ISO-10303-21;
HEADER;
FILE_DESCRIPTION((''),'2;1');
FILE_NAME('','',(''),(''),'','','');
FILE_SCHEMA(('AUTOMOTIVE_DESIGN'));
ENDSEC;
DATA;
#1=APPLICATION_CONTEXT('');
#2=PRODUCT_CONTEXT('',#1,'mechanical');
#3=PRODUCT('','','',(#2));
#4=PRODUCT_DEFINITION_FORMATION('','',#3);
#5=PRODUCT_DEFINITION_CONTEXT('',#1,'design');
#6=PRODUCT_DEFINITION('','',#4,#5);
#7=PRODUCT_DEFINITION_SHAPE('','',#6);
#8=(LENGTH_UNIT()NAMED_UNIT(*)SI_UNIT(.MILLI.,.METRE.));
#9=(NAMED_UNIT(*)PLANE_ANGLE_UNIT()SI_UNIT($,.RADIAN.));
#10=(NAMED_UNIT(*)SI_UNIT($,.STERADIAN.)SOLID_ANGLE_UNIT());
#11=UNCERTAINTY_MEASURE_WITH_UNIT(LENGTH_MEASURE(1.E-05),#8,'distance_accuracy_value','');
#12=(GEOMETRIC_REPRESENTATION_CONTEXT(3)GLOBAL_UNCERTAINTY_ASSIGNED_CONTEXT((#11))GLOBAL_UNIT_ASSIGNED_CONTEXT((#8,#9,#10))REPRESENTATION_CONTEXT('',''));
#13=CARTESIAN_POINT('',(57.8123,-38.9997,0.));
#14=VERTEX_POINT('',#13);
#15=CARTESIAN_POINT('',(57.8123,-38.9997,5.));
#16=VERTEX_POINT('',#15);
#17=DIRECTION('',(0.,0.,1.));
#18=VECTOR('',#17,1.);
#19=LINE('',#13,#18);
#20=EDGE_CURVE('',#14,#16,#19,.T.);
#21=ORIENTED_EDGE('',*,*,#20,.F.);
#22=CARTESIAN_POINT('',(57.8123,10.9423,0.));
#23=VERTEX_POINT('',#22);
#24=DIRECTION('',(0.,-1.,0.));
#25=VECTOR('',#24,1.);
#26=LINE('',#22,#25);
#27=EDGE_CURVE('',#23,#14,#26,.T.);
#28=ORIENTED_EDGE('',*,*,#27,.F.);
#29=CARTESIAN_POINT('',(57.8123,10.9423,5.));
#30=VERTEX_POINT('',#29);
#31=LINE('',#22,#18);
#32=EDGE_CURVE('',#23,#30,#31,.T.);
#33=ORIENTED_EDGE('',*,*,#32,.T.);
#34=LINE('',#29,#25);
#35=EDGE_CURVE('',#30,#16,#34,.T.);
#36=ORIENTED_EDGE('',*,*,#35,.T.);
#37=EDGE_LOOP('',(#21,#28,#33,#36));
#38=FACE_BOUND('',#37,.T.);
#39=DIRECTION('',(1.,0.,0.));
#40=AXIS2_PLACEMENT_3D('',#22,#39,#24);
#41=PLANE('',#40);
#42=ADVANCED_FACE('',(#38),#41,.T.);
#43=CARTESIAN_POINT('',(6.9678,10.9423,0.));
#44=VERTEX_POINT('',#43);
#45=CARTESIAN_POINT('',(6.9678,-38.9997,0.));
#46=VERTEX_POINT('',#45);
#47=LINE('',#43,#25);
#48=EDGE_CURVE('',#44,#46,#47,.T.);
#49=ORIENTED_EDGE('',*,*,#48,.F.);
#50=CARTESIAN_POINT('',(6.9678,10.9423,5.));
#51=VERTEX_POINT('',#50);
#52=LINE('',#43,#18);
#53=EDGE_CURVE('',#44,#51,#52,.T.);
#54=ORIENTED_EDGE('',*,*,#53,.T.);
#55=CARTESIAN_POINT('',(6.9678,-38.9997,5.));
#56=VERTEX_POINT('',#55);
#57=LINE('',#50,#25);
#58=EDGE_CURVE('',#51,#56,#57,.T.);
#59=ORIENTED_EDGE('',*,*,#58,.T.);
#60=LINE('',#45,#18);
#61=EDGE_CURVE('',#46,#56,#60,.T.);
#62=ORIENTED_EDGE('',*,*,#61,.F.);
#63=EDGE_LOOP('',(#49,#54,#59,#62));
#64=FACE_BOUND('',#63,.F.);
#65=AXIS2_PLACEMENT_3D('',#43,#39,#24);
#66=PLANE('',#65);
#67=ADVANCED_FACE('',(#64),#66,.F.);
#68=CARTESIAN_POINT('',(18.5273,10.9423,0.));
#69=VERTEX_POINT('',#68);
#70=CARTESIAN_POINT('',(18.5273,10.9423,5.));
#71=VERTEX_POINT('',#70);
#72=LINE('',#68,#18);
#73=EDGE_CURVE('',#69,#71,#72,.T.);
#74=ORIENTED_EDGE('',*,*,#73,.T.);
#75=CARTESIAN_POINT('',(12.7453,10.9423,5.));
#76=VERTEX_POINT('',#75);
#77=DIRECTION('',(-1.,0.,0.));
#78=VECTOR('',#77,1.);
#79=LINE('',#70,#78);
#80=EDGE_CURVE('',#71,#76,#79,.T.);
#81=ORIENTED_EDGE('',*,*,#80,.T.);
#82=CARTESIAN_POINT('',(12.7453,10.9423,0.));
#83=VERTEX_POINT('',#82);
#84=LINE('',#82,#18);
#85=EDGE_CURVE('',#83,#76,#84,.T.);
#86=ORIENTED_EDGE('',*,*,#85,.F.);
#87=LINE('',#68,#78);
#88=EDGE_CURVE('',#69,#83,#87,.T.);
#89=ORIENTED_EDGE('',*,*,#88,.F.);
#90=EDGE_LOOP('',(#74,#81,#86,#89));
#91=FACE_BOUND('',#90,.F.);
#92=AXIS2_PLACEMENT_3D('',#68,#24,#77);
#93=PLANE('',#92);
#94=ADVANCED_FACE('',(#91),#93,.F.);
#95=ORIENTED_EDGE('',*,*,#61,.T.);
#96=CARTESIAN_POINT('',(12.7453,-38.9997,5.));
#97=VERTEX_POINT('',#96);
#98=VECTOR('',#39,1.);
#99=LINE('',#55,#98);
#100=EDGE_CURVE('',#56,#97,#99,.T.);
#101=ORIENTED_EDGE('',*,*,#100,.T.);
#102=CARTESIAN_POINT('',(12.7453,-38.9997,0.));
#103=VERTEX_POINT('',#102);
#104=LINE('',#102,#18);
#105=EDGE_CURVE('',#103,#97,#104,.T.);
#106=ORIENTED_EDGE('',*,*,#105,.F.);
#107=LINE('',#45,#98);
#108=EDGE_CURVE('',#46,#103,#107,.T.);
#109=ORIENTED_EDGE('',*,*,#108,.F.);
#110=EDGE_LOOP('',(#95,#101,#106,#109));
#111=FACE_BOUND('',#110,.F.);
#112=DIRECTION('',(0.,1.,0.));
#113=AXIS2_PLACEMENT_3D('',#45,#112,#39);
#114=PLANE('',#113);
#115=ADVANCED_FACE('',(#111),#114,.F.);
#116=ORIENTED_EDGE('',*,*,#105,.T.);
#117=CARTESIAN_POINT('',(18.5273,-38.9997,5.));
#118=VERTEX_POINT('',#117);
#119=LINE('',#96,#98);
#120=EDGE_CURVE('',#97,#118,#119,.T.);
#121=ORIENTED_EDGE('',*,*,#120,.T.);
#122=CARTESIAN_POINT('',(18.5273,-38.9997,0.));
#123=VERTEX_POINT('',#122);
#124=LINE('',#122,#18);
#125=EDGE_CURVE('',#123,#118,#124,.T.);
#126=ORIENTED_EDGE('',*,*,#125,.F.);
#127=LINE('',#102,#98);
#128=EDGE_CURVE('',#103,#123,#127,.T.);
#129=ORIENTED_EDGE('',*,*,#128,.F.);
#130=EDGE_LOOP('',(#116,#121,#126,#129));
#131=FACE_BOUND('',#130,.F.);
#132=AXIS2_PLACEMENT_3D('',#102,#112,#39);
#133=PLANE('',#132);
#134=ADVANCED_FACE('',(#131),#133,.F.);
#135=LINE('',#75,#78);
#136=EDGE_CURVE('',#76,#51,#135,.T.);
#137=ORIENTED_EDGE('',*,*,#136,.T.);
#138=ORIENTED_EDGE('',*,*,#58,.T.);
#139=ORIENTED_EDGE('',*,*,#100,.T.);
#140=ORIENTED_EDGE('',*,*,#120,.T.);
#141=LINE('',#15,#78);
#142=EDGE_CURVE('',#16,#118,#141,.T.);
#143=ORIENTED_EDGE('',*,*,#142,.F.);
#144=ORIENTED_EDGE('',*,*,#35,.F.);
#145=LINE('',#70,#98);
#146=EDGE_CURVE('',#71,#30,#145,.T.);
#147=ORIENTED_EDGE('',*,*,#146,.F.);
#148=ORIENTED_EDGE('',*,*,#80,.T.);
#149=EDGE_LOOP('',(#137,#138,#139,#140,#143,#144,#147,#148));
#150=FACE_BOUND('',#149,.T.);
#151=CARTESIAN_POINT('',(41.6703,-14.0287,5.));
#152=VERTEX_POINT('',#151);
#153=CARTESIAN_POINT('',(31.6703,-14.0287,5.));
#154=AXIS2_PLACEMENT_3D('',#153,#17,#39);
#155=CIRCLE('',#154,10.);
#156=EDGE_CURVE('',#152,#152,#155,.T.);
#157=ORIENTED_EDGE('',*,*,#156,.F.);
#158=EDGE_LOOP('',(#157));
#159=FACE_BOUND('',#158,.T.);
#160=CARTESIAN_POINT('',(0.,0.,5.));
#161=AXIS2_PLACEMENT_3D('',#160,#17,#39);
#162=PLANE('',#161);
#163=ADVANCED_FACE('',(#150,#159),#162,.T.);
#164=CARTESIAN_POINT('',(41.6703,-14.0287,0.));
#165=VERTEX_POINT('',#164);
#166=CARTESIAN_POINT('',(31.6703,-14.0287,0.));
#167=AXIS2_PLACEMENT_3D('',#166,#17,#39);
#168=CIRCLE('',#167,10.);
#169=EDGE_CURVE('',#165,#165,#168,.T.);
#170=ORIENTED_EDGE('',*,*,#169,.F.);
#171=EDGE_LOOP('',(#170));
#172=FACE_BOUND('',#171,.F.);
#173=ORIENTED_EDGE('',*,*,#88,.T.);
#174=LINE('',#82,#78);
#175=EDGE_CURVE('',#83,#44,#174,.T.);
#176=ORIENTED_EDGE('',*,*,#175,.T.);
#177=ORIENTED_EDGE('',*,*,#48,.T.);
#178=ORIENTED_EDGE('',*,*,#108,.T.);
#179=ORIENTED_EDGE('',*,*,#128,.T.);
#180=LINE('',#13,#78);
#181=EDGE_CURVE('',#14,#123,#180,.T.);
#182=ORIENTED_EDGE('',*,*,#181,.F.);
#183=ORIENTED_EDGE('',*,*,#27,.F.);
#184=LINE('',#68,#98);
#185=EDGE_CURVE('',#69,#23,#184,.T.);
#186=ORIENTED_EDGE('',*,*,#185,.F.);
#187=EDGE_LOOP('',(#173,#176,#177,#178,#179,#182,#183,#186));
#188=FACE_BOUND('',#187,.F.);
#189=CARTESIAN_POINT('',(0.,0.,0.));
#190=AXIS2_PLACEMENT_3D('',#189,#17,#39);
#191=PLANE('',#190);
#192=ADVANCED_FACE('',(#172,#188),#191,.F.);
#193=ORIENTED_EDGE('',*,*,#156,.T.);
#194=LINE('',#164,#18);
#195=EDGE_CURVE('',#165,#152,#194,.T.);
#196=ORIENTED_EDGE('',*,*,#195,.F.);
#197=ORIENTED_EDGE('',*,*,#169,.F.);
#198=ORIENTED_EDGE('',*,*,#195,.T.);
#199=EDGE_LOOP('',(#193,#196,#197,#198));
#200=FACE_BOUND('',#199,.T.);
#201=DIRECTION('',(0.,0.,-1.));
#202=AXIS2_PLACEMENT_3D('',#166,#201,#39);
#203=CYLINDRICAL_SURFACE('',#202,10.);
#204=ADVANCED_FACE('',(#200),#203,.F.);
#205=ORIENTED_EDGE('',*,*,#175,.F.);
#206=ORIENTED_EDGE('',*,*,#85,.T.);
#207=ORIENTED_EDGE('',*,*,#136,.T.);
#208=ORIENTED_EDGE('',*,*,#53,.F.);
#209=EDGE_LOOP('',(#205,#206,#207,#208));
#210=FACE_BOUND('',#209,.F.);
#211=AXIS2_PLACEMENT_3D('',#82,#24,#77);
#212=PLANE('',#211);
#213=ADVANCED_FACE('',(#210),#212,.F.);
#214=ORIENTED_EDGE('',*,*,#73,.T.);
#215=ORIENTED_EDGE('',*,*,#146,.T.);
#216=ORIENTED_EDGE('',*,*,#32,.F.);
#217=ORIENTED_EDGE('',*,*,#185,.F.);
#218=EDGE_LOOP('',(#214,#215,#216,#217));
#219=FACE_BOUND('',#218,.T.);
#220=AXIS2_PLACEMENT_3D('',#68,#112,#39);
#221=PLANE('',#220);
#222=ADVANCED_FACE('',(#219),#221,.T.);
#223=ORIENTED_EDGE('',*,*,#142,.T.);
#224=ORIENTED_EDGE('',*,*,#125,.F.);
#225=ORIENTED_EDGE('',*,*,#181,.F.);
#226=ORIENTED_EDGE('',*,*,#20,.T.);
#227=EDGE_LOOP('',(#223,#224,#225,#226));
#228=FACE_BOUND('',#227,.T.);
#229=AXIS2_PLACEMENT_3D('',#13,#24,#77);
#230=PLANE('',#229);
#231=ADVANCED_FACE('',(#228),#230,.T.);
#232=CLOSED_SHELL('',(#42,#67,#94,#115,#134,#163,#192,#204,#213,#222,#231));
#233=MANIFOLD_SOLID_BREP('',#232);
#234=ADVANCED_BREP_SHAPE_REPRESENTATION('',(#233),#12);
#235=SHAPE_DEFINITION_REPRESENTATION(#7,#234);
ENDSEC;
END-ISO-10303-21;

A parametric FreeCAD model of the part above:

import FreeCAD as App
import Part
import Sketcher

V = App.Vector
Q = App.Units.Quantity


def add_polygon(sketch, points):
    """Adds a closed chain of lines whose ends are joined by coincident constraints."""
    first, n = sketch.GeometryCount, len(points)
    for a, b in zip(points, points[1:] + points[:1]):
        sketch.addGeometry(Part.LineSegment(App.Vector(*a, 0), App.Vector(*b, 0)), False)
    for i in range(n):
        sketch.addConstraint(Sketcher.Constraint("Coincident", first + i, 2, first + (i + 1) % n, 1))

doc = App.newDocument("Part")
body = doc.addObject("PartDesign::Body", "Body")

sketch1 = body.newObject("Sketcher::SketchObject", "Sketch")
sketch1.AttachmentSupport = (doc.getObject("XY_Plane"), [""])
sketch1.MapMode = "FlatFace"
add_polygon(sketch1, [(58, -39), (58, 11), (7, 11), (7, -39)])
sketch1.addGeometry(Part.Circle(V(32, -14, 0), V(0, 0, 1), 10), False)
sketch1.addConstraint([
    Sketcher.Constraint("Vertical", 0),
    Sketcher.Constraint("Horizontal", 1),
    Sketcher.Constraint("Vertical", 2),
    Sketcher.Constraint("Horizontal", 3),
    Sketcher.Constraint("Diameter", 4, Q("20 mm")),
    Sketcher.Constraint("DistanceY", 0, 1, 0, 2, Q("49.942 mm")),
    Sketcher.Constraint("DistanceX", 1, 2, 1, 1, Q("50.8445 mm")),
    Sketcher.Constraint("DistanceX", 4, 3, 0, 2, Q("26.142 mm")),
    Sketcher.Constraint("DistanceY", 4, 3, 0, 2, Q("24.971 mm")),
    Sketcher.Constraint("DistanceX", -1, 1, 4, 3, Q("31.6703 mm")),
    Sketcher.Constraint("DistanceY", 4, 3, -1, 1, Q("14.0287 mm")),
])
pad1 = body.newObject("PartDesign::Pad", "Pad")
pad1.Profile = sketch1
pad1.Length = 5

doc.recompute()
